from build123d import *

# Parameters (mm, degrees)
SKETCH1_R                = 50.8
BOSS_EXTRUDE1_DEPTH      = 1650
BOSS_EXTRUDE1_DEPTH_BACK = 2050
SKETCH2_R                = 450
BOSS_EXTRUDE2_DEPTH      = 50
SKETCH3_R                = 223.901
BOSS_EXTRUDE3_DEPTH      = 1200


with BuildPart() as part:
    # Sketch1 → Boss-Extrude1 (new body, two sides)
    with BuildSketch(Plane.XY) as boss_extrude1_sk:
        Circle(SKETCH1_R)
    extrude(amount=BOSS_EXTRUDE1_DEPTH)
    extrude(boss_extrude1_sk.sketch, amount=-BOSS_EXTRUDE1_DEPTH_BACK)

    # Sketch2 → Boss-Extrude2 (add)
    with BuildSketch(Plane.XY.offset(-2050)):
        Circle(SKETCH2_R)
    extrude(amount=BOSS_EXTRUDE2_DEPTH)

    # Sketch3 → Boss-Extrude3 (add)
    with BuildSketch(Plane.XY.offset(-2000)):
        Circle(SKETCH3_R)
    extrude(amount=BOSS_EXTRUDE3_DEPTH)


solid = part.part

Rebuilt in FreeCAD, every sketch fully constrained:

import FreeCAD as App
import Part
import Sketcher

doc = App.newDocument("Part")
params = doc.addObject("Spreadsheet::Sheet", "Params")
for row, (alias, value) in enumerate([
    ("sketch1_diameter", "101.6 mm"),
    ("pad1_length", "1650 mm"),
    ("pad1_length2", "2050 mm"),
    ("sketch2_diameter", "900 mm"),
    ("pad2_length", "50 mm"),
    ("pad3_length", "1200 mm"),
], start=1):
    params.set(f"A{row}", alias)
    params.set(f"B{row}", "=" + value)
    params.setAlias(f"B{row}", alias)

body = doc.addObject("PartDesign::Body", "Body")

# Sketch on XY plane
sketch1 = body.newObject("Sketcher::SketchObject", "Sketch")
sketch1.AttachmentSupport = (doc.getObject("XY_Plane"), [""])
sketch1.MapMode = "FlatFace"
sketch1.addGeometry(Part.Circle(App.Vector(0, 0, 0), App.Vector(0, 0, 1), 51), False)
sketch1.addConstraint([
    Sketcher.Constraint("Coincident", 0, 3, -1, 1),
    Sketcher.Constraint("Diameter", 0, 101.6),
])
sketch1.setExpression("Constraints[1]", "Params.sketch1_diameter")
pad1 = body.newObject("PartDesign::Pad", "Pad")
pad1.Profile = sketch1
pad1.Type = "TwoLengths"
pad1.setExpression("Length", "Params.pad1_length")
pad1.setExpression("Length2", "Params.pad1_length2")

# Sketch on XY plane
sketch2 = body.newObject("Sketcher::SketchObject", "Sketch001")
sketch2.AttachmentSupport = (doc.getObject("XY_Plane"), [""])
sketch2.MapMode = "FlatFace"
sketch2.AttachmentOffset = App.Placement(App.Vector(0, 0, -2050), App.Rotation())
sketch2.addGeometry(Part.Circle(App.Vector(0, 0, 0), App.Vector(0, 0, 1), 450), False)
sketch2.addConstraint([
    Sketcher.Constraint("Coincident", 0, 3, -1, 1),
    Sketcher.Constraint("Diameter", 0, 900.0),
])
sketch2.setExpression("Constraints[1]", "Params.sketch2_diameter")
pad2 = body.newObject("PartDesign::Pad", "Pad001")
pad2.Profile = sketch2
pad2.setExpression("Length", "Params.pad2_length")

# Sketch on XY plane
sketch3 = body.newObject("Sketcher::SketchObject", "Sketch002")
sketch3.AttachmentSupport = (doc.getObject("XY_Plane"), [""])
sketch3.MapMode = "FlatFace"
sketch3.AttachmentOffset = App.Placement(App.Vector(0, 0, -2000), App.Rotation())
sketch3.addGeometry(Part.Circle(App.Vector(0, 0, 0), App.Vector(0, 0, 1), 224), False)
sketch3.addConstraint([
    Sketcher.Constraint("Coincident", 0, 3, -1, 1),
    Sketcher.Constraint("Diameter", 0, 447.802),
])
pad3 = body.newObject("PartDesign::Pad", "Pad002")
pad3.Profile = sketch3
pad3.setExpression("Length", "Params.pad3_length")

doc.recompute()
